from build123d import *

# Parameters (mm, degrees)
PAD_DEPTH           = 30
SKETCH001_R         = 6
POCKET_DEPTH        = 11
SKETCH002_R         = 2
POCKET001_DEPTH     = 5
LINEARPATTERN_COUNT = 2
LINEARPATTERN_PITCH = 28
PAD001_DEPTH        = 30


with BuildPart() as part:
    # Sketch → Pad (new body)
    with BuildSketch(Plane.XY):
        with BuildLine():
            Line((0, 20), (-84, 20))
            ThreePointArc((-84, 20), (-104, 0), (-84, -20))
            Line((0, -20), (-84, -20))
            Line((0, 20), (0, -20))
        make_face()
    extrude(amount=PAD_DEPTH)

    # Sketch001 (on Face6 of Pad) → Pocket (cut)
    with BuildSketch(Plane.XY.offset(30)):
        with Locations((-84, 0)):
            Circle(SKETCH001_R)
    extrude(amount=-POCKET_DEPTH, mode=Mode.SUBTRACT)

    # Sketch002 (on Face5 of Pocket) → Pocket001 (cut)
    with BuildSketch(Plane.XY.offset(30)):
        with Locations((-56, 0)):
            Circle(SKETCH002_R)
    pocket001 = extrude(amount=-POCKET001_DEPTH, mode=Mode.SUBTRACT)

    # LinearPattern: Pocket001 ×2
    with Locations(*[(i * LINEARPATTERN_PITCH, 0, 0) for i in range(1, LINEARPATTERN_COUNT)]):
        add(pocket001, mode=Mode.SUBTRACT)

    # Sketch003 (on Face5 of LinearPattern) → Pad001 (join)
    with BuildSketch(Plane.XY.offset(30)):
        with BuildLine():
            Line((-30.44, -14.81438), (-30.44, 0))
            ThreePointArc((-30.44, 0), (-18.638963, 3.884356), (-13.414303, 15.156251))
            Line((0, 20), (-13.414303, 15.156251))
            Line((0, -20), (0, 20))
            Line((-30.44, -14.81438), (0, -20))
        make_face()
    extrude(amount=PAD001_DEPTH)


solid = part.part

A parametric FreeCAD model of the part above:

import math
import FreeCAD as App
import Part
import Sketcher
from FreeCAD import Vector
Q = App.Units.Quantity

doc = App.newDocument("Part")
params = doc.addObject("Spreadsheet::Sheet", "Params")
for row, (alias, value) in enumerate([
    ("sketch1_radius", "20 mm"),
    ("sketch1_width", "84 mm"),
    ("pad1_length", "30 mm"),
    ("sketch2_diameter", "12 mm"),
    ("pocket1_length", "11 mm"),
    ("sketch3_diameter", "4 mm"),
    ("pocket2_length", "5 mm"),
    ("linearpattern_pitch", "28 mm"),
    ("sketch4_height", "40 mm"),
    ("pad2_length", "30 mm"),
], start=1):
    params.set(f"A{row}", alias)
    params.set(f"B{row}", "=" + value)
    params.setAlias(f"B{row}", alias)

body = doc.addObject("PartDesign::Body", "Body")

sketch1 = body.newObject("Sketcher::SketchObject", "Sketch")
sketch1.AttachmentSupport = (doc.getObject("XY_Plane"), [""])
sketch1.MapMode = "FlatFace"
sketch1.addGeometry(Part.LineSegment(Vector(0, 20, 0), Vector(-84, 20, 0)), False)
sketch1.addGeometry(Part.ArcOfCircle(Part.Circle(Vector(-84, 0, 0), Vector(0, 0, 1), 20), math.radians(90), math.radians(270)), False)
sketch1.addGeometry(Part.LineSegment(Vector(-84, -20, 0), Vector(0, -20, 0)), False)
sketch1.addGeometry(Part.LineSegment(Vector(0, -20, 0), Vector(0, 20, 0)), False)
sketch1.addConstraint(Sketcher.Constraint("Tangent", 0, 2, 1, 1))
sketch1.addConstraint(Sketcher.Constraint("Tangent", 1, 2, 2, 1))
sketch1.addConstraint(Sketcher.Constraint("Coincident", 2, 2, 3, 1))
sketch1.addConstraint(Sketcher.Constraint("Coincident", 3, 2, 0, 1))
sketch1.addConstraint(Sketcher.Constraint("Horizontal", 0))
sketch1.addConstraint(Sketcher.Constraint("Horizontal", 2))
sketch1.addConstraint(Sketcher.Constraint("Vertical", 3))
sketch1.addConstraint(Sketcher.Constraint("Symmetric", 2, 2, 3, 2, -1, 1))
sketch1.addConstraint(Sketcher.Constraint("Radius", 1, Q("20 mm")))
sketch1.addConstraint(Sketcher.Constraint("DistanceX", 0, 2, 0, 1, Q("84 mm")))
sketch1.setExpression("Constraints[8]", "Params.sketch1_radius")
sketch1.setExpression("Constraints[9]", "Params.sketch1_width")
pad1 = body.newObject("PartDesign::Pad", "Pad")
pad1.Profile = sketch1
pad1.setExpression("Length", "Params.pad1_length")

sketch2 = body.newObject("Sketcher::SketchObject", "Sketch001")
sketch2.AttachmentSupport = (doc.getObject("XY_Plane"), [""])
sketch2.MapMode = "FlatFace"
sketch2.AttachmentOffset = App.Placement(Vector(0, 0, 30), App.Rotation())
sketch2.addGeometry(Part.Circle(Vector(-84, 0, 0), Vector(0, 0, 1), 6), False)
sketch2.addConstraint(Sketcher.Constraint("PointOnObject", 0, 3, -1))
sketch2.addConstraint(Sketcher.Constraint("Diameter", 0, Q("12 mm")))
sketch2.addConstraint(Sketcher.Constraint("DistanceX", 0, 3, -1, 1, Q("84 mm")))
sketch2.setExpression("Constraints[1]", "Params.sketch2_diameter")
pocket1 = body.newObject("PartDesign::Pocket", "Pocket")
pocket1.Profile = sketch2
pocket1.setExpression("Length", "Params.pocket1_length")

sketch3 = body.newObject("Sketcher::SketchObject", "Sketch002")
sketch3.AttachmentSupport = (doc.getObject("XY_Plane"), [""])
sketch3.MapMode = "FlatFace"
sketch3.AttachmentOffset = App.Placement(Vector(0, 0, 30), App.Rotation())
sketch3.addGeometry(Part.Circle(Vector(-56, 0, 0), Vector(0, 0, 1), 2), False)
sketch3.addConstraint(Sketcher.Constraint("PointOnObject", 0, 3, -1))
sketch3.addConstraint(Sketcher.Constraint("Diameter", 0, Q("4 mm")))
sketch3.addConstraint(Sketcher.Constraint("DistanceX", 0, 3, -1, 1, Q("56 mm")))
sketch3.setExpression("Constraints[1]", "Params.sketch3_diameter")
pocket2 = body.newObject("PartDesign::Pocket", "Pocket001")
pocket2.Profile = sketch3
pocket2.setExpression("Length", "Params.pocket2_length")
doc.recompute()

linearpattern = body.newObject("PartDesign::LinearPattern", "LinearPattern")
linearpattern.Originals = [pocket2]
linearpattern.Direction = (doc.getObject("X_Axis"), [""])
linearpattern.Mode = "offset"
linearpattern.setExpression("Offset", "Params.linearpattern_pitch")
linearpattern.Occurrences = 2
body.Tip = linearpattern

sketch4 = body.newObject("Sketcher::SketchObject", "Sketch003")
sketch4.AttachmentSupport = (doc.getObject("XY_Plane"), [""])
sketch4.MapMode = "FlatFace"
sketch4.AttachmentOffset = App.Placement(Vector(0, 0, 30), App.Rotation())
sketch4.addGeometry(Part.LineSegment(Vector(-30, 0, 0), Vector(-30, -15, 0)), False)
sketch4.addGeometry(Part.LineSegment(Vector(-30, -15, 0), Vector(0, -20, 0)), False)
sketch4.addGeometry(Part.LineSegment(Vector(0, -20, 0), Vector(0, 20, 0)), False)
sketch4.addGeometry(Part.LineSegment(Vector(0, 20, 0), Vector(-13, 15, 0)), False)
sketch4.addGeometry(Part.ArcOfCircle(Part.Circle(Vector(-29, 16, 0), Vector(0, 0, 1), 16), math.radians(-95), math.radians(-1)), False)
sketch4.addConstraint(Sketcher.Constraint("Coincident", 0, 2, 1, 1))
sketch4.addConstraint(Sketcher.Constraint("Coincident", 1, 2, 2, 1))
sketch4.addConstraint(Sketcher.Constraint("Coincident", 2, 2, 3, 1))
sketch4.addConstraint(Sketcher.Constraint("Coincident", 3, 2, 4, 2))
sketch4.addConstraint(Sketcher.Constraint("Coincident", 4, 1, 0, 1))
sketch4.addConstraint(Sketcher.Constraint("Vertical", 0))
sketch4.addConstraint(Sketcher.Constraint("Vertical", 2))
sketch4.addConstraint(Sketcher.Constraint("Symmetric", 1, 2, 2, 2, -1, 1))
sketch4.addConstraint(Sketcher.Constraint("PointOnObject", 4, 1, -1))
sketch4.addConstraint(Sketcher.Constraint("DistanceY", 2, 1, 2, 2, Q("40 mm")))
sketch4.addConstraint(Sketcher.Constraint("DistanceX", 0, 2, -1, 1, Q("30.44 mm")))
sketch4.addConstraint(Sketcher.Constraint("Radius", 4, Q("15.605959 mm")))
sketch4.addConstraint(Sketcher.Constraint("DistanceY", 0, 2, 0, 1, Q("14.81438 mm")))
sketch4.addConstraint(Sketcher.Constraint("DistanceY", -1, 1, 4, 3, Q("15.540812 mm")))
sketch4.addConstraint(Sketcher.Constraint("DistanceY", -1, 1, 3, 2, Q("15.156251 mm")))
sketch4.setExpression("Constraints[9]", "Params.sketch4_height")
pad2 = body.newObject("PartDesign::Pad", "Pad001")
pad2.Profile = sketch4
pad2.setExpression("Length", "Params.pad2_length")

doc.recompute()
